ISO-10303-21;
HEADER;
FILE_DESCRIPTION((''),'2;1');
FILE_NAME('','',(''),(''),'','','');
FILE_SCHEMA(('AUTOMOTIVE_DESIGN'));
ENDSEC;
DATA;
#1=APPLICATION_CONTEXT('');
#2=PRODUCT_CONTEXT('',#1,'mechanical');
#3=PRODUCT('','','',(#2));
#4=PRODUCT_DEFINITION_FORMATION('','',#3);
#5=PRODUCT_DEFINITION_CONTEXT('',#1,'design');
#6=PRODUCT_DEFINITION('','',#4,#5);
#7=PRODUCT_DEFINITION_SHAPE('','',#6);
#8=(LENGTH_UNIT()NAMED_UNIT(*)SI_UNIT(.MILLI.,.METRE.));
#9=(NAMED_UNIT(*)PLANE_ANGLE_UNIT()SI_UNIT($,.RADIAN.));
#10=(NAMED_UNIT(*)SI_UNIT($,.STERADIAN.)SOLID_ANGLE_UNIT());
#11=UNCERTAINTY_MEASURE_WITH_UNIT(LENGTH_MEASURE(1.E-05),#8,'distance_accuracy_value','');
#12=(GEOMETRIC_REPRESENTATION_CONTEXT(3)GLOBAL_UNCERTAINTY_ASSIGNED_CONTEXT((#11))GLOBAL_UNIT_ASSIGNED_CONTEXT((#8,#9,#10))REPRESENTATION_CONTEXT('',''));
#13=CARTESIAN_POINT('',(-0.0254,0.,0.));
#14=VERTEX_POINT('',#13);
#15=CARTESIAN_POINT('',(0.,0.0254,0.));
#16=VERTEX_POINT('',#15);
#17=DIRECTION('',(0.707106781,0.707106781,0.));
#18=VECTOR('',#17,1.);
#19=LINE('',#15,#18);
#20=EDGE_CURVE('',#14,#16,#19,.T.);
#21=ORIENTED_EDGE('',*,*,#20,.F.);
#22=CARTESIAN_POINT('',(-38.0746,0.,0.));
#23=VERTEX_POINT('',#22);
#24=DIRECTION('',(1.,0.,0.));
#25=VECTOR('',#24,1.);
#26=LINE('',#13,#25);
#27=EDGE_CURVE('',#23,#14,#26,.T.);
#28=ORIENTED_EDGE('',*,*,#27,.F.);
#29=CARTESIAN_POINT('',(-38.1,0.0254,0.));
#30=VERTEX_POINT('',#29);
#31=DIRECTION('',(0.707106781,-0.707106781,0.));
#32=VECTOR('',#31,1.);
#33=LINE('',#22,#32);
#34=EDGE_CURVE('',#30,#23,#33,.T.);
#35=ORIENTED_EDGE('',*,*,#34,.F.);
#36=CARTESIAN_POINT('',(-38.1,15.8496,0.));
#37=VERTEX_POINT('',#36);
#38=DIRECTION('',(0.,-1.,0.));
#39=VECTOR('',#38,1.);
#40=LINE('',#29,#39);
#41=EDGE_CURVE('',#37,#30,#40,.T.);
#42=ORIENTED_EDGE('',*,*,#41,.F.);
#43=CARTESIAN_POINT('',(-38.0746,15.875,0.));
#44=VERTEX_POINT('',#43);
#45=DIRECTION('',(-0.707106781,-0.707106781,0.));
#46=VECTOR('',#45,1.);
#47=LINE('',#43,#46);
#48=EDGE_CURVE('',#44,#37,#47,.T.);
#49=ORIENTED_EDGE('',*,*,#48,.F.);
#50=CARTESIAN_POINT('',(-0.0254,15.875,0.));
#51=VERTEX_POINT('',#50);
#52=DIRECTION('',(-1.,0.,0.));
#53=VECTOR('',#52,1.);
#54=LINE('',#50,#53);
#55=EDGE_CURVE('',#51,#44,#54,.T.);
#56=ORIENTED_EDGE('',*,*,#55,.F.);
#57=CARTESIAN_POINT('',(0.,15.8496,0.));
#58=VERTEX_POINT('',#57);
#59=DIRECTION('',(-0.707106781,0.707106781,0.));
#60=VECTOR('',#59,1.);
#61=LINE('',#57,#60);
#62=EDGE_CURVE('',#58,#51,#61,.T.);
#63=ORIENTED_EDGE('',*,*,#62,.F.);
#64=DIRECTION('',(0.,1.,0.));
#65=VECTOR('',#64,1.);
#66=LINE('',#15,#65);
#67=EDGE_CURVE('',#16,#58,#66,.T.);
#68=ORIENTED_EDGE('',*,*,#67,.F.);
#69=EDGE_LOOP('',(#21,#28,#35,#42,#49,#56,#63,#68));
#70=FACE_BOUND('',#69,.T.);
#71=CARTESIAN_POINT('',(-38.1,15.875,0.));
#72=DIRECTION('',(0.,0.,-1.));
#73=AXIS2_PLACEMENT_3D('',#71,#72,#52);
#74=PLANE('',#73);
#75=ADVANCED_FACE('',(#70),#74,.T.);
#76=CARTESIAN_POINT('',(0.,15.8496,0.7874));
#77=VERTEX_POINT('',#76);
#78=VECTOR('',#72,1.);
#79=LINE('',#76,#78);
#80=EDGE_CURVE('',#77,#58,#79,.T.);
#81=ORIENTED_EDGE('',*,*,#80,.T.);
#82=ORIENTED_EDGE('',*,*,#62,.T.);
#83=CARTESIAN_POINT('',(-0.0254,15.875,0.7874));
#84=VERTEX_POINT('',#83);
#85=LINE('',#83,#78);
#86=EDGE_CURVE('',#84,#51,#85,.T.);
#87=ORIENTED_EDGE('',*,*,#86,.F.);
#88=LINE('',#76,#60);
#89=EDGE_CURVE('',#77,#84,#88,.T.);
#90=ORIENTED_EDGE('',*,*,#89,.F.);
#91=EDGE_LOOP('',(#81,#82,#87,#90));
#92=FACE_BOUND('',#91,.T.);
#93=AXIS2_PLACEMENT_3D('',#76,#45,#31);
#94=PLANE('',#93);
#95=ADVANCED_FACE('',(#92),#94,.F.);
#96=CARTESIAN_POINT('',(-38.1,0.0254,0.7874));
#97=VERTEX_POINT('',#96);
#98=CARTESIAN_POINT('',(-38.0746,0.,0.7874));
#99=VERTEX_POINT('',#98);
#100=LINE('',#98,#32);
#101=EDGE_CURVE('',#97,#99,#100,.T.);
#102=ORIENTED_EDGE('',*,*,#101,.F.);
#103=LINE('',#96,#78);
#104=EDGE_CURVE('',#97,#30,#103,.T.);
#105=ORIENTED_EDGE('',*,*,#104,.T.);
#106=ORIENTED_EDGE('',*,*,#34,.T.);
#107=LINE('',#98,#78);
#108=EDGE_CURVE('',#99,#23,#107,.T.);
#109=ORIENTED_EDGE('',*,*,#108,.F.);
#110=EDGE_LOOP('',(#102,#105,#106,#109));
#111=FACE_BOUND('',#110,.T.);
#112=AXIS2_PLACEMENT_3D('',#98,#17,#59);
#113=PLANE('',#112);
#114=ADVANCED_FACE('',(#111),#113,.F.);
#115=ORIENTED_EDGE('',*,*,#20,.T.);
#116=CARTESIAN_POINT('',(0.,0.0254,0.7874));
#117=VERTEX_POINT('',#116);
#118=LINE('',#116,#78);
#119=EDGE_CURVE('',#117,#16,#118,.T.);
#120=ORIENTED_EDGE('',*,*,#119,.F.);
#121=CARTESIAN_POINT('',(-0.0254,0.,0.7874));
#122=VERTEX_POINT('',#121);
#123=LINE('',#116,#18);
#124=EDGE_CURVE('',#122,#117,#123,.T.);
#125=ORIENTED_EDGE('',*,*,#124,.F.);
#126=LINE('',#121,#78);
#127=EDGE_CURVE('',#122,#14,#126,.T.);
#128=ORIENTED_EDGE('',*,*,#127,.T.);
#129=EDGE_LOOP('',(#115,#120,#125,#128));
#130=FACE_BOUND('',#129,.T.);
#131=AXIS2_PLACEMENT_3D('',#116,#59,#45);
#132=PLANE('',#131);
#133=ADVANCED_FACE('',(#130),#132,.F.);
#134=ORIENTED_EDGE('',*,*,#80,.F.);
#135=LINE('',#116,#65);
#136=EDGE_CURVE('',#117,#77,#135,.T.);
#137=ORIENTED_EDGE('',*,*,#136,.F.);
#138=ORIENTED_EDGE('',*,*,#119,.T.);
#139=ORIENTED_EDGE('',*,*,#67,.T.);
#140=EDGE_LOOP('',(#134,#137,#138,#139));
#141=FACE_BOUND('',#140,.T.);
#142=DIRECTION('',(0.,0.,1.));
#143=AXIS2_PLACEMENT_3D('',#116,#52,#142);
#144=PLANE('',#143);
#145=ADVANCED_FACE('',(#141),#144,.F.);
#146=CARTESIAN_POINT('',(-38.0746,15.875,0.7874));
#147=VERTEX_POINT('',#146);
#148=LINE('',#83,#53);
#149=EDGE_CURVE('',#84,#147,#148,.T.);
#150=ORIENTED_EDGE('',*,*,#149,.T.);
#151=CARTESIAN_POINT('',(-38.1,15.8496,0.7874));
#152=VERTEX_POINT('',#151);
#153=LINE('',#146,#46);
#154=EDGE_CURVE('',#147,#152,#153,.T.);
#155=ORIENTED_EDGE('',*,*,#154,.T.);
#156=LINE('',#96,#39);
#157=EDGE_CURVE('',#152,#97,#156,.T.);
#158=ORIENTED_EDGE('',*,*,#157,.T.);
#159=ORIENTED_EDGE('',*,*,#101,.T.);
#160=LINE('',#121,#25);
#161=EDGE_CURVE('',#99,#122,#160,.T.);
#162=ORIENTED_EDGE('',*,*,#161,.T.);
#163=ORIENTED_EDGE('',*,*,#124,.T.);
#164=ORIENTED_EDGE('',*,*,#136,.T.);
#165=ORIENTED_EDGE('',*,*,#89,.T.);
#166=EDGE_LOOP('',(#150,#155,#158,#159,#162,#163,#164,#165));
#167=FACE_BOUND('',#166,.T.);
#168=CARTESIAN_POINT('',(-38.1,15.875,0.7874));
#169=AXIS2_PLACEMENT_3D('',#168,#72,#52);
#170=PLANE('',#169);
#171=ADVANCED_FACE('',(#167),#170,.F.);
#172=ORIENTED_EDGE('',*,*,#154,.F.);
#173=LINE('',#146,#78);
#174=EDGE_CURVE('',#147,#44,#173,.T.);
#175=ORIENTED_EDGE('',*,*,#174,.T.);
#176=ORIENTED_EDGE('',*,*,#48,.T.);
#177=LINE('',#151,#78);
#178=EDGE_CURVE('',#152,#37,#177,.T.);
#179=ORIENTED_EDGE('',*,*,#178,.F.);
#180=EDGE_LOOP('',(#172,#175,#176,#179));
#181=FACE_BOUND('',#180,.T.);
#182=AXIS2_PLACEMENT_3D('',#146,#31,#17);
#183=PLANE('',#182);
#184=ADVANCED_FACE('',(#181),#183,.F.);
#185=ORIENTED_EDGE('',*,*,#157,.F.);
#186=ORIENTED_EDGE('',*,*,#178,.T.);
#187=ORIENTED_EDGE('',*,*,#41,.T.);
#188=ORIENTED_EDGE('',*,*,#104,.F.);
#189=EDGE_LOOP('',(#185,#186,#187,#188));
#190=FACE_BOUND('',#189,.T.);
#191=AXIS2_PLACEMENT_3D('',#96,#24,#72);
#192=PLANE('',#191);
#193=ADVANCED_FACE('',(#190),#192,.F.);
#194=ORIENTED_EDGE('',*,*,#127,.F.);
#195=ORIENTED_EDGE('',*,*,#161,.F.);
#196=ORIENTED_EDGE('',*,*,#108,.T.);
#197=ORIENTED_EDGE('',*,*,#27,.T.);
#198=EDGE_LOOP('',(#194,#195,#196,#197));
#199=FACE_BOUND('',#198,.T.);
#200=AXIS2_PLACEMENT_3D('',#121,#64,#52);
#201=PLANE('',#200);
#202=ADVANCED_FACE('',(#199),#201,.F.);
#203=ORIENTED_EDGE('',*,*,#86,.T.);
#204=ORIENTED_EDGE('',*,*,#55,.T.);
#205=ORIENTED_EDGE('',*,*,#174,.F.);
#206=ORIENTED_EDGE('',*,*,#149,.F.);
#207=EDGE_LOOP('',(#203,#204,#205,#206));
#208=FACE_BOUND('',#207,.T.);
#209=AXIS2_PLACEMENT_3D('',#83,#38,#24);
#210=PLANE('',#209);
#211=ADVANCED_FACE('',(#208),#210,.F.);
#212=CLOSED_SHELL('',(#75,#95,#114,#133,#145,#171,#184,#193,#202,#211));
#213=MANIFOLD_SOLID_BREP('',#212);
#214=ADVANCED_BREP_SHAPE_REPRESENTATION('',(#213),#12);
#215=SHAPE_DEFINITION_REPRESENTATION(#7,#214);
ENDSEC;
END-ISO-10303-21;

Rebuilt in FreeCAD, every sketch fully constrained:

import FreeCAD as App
import Part
import Sketcher
Q = App.Units.Quantity


def add_polygon(sketch, points):
    """Adds a closed chain of lines whose ends are joined by coincident constraints."""
    first, n = sketch.GeometryCount, len(points)
    for a, b in zip(points, points[1:] + points[:1]):
        sketch.addGeometry(Part.LineSegment(App.Vector(*a, 0), App.Vector(*b, 0)), False)
    for i in range(n):
        sketch.addConstraint(Sketcher.Constraint("Coincident", first + i, 2, first + (i + 1) % n, 1))

doc = App.newDocument("Part")
body = doc.addObject("PartDesign::Body", "Body")

# Sketch on XY plane
sketch1 = doc.addObject("Sketcher::SketchObject", "Sketch")
body.addObject(sketch1)
sketch1.AttachmentSupport = (doc.XY_Plane, [""])
sketch1.MapMode = "FlatFace"
add_polygon(sketch1, [(-38.075, 15.875), (-38.1, 15.85), (-38.1, 0.025), (-38.075, 0), (-0.025, 0), (0, 0.025), (0, 15.85), (-0.025, 15.875)])  # lines 0-7
sketch1.addConstraint([
    Sketcher.Constraint("Vertical", 1),
    Sketcher.Constraint("Horizontal", 3),
    Sketcher.Constraint("Vertical", 5),
    Sketcher.Constraint("Horizontal", 7),
    Sketcher.Constraint("PointOnObject", 2, 2, -1),
    Sketcher.Constraint("PointOnObject", 4, 2, -2),
    Sketcher.Constraint("Perpendicular", 0, 2),
    Sketcher.Constraint("Perpendicular", 2, 4),
    Sketcher.Constraint("Perpendicular", 4, 6),
    Sketcher.Constraint("Horizontal", 1, 2, 4, 2),
    Sketcher.Constraint("Horizontal", 0, 2, 5, 2),
    Sketcher.Constraint("Vertical", 3, 2, 6, 2),
    Sketcher.Constraint("Vertical", 2, 2, 7, 2),
    Sketcher.Constraint("DistanceX", 0, 2, -1, 1, Q("1.5 in")),
    Sketcher.Constraint("DistanceX", 3, 1, 3, 2, Q("1.498 in")),
    Sketcher.Constraint("DistanceY", 1, 2, 1, 1, Q("0.623 in")),
])
pad1 = doc.addObject("PartDesign::Pad", "Pad")
body.addObject(pad1)
pad1.Profile = sketch1
pad1.Length = Q("0.031 in")

doc.recompute()
